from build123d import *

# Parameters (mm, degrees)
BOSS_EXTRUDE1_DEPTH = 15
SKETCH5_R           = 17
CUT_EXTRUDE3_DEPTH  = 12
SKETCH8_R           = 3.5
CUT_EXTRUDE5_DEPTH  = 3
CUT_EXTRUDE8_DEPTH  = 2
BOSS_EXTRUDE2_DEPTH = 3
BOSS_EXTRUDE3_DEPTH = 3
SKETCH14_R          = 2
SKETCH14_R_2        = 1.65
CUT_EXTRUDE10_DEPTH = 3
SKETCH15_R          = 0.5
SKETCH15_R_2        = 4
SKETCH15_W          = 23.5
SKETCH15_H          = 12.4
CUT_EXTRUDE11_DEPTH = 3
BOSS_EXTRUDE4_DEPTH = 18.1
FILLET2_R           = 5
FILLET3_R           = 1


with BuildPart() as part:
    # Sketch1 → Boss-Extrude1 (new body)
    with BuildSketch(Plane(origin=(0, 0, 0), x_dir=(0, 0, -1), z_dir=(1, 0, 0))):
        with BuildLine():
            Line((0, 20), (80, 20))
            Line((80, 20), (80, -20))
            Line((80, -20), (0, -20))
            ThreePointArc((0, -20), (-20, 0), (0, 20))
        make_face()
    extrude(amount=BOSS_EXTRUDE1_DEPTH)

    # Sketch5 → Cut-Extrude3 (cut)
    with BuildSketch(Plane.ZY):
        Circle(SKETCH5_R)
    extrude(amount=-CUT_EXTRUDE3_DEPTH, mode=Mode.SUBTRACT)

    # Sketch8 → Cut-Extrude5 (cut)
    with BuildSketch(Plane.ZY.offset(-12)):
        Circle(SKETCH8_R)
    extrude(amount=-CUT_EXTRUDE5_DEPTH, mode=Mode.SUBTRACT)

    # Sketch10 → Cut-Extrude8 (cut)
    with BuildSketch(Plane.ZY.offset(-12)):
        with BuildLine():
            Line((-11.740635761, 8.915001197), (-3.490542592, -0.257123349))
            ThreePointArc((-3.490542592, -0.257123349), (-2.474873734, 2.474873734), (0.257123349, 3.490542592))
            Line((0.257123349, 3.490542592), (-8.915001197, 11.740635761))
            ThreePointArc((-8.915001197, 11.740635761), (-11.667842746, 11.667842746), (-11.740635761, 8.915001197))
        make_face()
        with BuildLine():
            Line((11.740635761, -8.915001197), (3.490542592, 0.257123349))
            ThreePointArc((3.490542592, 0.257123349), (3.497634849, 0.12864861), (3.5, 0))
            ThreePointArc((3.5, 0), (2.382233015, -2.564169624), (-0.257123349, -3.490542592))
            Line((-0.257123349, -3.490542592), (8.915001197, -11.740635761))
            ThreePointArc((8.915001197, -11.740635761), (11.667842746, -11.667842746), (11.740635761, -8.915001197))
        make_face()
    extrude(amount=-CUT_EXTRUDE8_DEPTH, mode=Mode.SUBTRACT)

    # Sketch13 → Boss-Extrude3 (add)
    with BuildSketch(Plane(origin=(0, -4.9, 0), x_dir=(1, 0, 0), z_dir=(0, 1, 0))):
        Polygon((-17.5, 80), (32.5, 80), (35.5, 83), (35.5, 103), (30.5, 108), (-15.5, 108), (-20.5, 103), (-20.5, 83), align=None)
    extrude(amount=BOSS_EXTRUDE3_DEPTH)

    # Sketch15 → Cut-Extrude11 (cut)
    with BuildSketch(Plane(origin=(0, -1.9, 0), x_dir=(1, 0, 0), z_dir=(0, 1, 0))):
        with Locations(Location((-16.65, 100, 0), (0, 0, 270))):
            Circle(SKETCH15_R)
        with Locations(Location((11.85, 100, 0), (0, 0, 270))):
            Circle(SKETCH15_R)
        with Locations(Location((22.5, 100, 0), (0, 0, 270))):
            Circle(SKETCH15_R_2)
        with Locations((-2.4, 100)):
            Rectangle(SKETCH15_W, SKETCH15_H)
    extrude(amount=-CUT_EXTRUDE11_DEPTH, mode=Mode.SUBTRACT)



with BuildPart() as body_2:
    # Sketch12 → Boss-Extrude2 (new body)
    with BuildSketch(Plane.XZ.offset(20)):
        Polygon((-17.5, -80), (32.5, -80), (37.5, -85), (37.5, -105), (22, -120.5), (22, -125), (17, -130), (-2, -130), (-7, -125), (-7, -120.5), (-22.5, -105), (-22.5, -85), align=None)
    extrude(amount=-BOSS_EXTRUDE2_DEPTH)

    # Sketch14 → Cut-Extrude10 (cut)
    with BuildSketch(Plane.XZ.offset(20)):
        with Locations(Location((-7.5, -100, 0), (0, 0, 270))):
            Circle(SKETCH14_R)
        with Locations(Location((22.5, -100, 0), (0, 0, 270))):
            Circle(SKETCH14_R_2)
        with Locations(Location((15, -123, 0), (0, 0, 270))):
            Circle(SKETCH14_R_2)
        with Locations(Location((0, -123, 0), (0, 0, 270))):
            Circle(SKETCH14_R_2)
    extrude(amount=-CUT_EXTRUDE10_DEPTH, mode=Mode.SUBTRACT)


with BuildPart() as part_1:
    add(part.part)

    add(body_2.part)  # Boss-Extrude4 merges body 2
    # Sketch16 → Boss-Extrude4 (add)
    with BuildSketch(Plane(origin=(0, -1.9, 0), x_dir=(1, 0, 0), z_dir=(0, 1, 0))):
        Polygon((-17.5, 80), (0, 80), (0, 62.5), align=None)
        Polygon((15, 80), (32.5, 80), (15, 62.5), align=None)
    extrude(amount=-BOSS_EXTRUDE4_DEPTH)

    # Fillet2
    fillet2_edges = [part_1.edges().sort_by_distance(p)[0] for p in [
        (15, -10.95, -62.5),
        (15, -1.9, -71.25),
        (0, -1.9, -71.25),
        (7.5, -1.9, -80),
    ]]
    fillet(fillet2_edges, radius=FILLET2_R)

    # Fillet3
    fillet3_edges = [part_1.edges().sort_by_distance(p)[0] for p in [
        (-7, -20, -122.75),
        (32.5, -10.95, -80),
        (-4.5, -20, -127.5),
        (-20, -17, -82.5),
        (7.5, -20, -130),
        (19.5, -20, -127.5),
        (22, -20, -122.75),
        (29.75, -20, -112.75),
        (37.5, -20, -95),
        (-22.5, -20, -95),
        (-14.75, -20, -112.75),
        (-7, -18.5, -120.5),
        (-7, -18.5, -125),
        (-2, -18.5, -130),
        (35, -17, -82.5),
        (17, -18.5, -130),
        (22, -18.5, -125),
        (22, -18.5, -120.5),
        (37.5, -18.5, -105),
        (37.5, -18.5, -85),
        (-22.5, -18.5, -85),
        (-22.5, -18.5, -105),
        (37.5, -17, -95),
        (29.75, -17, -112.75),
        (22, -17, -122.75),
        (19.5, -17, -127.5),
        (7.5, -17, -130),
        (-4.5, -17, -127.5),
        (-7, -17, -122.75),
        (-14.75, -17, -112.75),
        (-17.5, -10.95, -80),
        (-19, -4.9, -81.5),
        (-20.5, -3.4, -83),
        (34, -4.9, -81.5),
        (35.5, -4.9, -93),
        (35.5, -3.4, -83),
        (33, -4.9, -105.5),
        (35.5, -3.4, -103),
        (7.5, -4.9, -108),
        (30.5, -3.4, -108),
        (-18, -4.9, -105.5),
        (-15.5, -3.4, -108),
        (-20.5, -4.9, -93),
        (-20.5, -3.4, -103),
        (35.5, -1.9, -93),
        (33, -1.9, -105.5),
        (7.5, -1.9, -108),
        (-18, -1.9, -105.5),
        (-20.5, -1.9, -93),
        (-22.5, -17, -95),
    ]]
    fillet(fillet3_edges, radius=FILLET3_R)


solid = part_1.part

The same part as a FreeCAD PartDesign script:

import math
import FreeCAD as App
import Part
import Sketcher
Q = App.Units.Quantity


def edges_at(feature, points):
    """Names of the edges that pass closest to the given points."""
    edges = feature.Shape.Edges
    near = lambda p: min(range(len(edges)), key=lambda i: edges[i].distToShape(Part.Vertex(*p))[0])
    return sorted({f"Edge{near(p) + 1}" for p in points})


def add_polygon(sketch, points):
    """Adds a closed chain of lines whose ends are joined by coincident constraints."""
    first, n = sketch.GeometryCount, len(points)
    for a, b in zip(points, points[1:] + points[:1]):
        sketch.addGeometry(Part.LineSegment(App.Vector(*a, 0), App.Vector(*b, 0)), False)
    for i in range(n):
        sketch.addConstraint(Sketcher.Constraint("Coincident", first + i, 2, first + (i + 1) % n, 1))

doc = App.newDocument("Part")
params = doc.addObject("Spreadsheet::Sheet", "Params")
for row, (alias, value) in enumerate([
    ("sketch1_radius", "20 mm"),
    ("sketch1_height", "80 mm"),
    ("pad1_length", "15 mm"),
    ("sketch2_diameter", "34 mm"),
    ("pocket1_length", "12 mm"),
    ("sketch3_diameter", "7 mm"),
    ("pocket2_length", "3 mm"),
    ("sketch4_radius", "3.5 mm"),
    ("pocket3_length", "2 mm"),
    ("sketch5_width", "50 mm"),
    ("sketch5_width2", "46 mm"),
    ("sketch5_height", "20 mm"),
    ("pad2_length", "3 mm"),
    ("sketch6_diameter", "1 mm"),
    ("sketch6_diameter2", "8 mm"),
    ("sketch6_width", "23.5 mm"),
    ("sketch6_height", "12.4 mm"),
    ("pocket4_length", "3 mm"),
    ("sketch7_width", "50 mm"),
    ("sketch7_width2", "19 mm"),
    ("sketch7_height", "20 mm"),
    ("sketch7_height2", "4.5 mm"),
    ("pad3_length", "3 mm"),
    ("sketch8_diameter", "4 mm"),
    ("sketch8_diameter2", "3.3 mm"),
    ("pocket5_length", "3 mm"),
    ("sketch9_width", "17.5 mm"),
    ("pad4_length", "18.1 mm"),
    ("fillet_radius", "5 mm"),
    ("fillet2_radius", "1 mm"),
], start=1):
    params.set(f"A{row}", alias)
    params.set(f"B{row}", "=" + value)
    params.setAlias(f"B{row}", alias)

body = doc.addObject("PartDesign::Body", "Body")

# Sketch on YZ plane
sketch1 = body.newObject("Sketcher::SketchObject", "Sketch")
sketch1.AttachmentSupport = (doc.getObject("YZ_Plane"), [""])
sketch1.MapMode = "FlatFace"
sketch1.addGeometry(Part.LineSegment(App.Vector(20, -80, 0), App.Vector(20, 0, 0)), False)
sketch1.addGeometry(Part.ArcOfCircle(Part.Circle(App.Vector(0, 0, 0), App.Vector(0, 0, 1), 20), math.radians(0), math.radians(180)), False)
sketch1.addGeometry(Part.LineSegment(App.Vector(-20, 0, 0), App.Vector(-20, -80, 0)), False)
sketch1.addGeometry(Part.LineSegment(App.Vector(-20, -80, 0), App.Vector(20, -80, 0)), False)
sketch1.addConstraint(Sketcher.Constraint("Tangent", 0, 2, 1, 1))
sketch1.addConstraint(Sketcher.Constraint("Tangent", 1, 2, 2, 1))
sketch1.addConstraint(Sketcher.Constraint("Coincident", 2, 2, 3, 1))
sketch1.addConstraint(Sketcher.Constraint("Coincident", 3, 2, 0, 1))
sketch1.addConstraint(Sketcher.Constraint("Vertical", 0))
sketch1.addConstraint(Sketcher.Constraint("Vertical", 2))
sketch1.addConstraint(Sketcher.Constraint("Horizontal", 3))
sketch1.addConstraint(Sketcher.Constraint("Coincident", 1, 3, -1, 1))
sketch1.addConstraint(Sketcher.Constraint("Radius", 1, Q("20 mm")))
sketch1.addConstraint(Sketcher.Constraint("DistanceY", 0, 1, 0, 2, Q("80 mm")))
sketch1.setExpression("Constraints[8]", "Params.sketch1_radius")
sketch1.setExpression("Constraints[9]", "Params.sketch1_height")
pad1 = body.newObject("PartDesign::Pad", "Pad")
pad1.Profile = sketch1
pad1.setExpression("Length", "Params.pad1_length")

# Sketch on YZ plane
sketch2 = body.newObject("Sketcher::SketchObject", "Sketch001")
sketch2.AttachmentSupport = (doc.getObject("YZ_Plane"), [""])
sketch2.MapMode = "FlatFace"
sketch2.addGeometry(Part.Circle(App.Vector(0, 0, 0), App.Vector(0, 0, 1), 17), False)
sketch2.addConstraint(Sketcher.Constraint("Coincident", 0, 3, -1, 1))
sketch2.addConstraint(Sketcher.Constraint("Diameter", 0, Q("34 mm")))
sketch2.setExpression("Constraints[1]", "Params.sketch2_diameter")
pocket1 = body.newObject("PartDesign::Pocket", "Pocket")
pocket1.Profile = sketch2
pocket1.setExpression("Length", "Params.pocket1_length")
pocket1.Reversed = True

# Sketch on YZ plane
sketch3 = body.newObject("Sketcher::SketchObject", "Sketch002")
sketch3.AttachmentSupport = (doc.getObject("YZ_Plane"), [""])
sketch3.MapMode = "FlatFace"
sketch3.AttachmentOffset = App.Placement(App.Vector(0, 0, 12), App.Rotation())
sketch3.addGeometry(Part.Circle(App.Vector(0, 0, 0), App.Vector(0, 0, 1), 3.5), False)
sketch3.addConstraint(Sketcher.Constraint("Coincident", 0, 3, -1, 1))
sketch3.addConstraint(Sketcher.Constraint("Diameter", 0, Q("7 mm")))
sketch3.setExpression("Constraints[1]", "Params.sketch3_diameter")
pocket2 = body.newObject("PartDesign::Pocket", "Pocket001")
pocket2.Profile = sketch3
pocket2.setExpression("Length", "Params.pocket2_length")
pocket2.Reversed = True

# Sketch on YZ plane
sketch4 = body.newObject("Sketcher::SketchObject", "Sketch003")
sketch4.AttachmentSupport = (doc.getObject("YZ_Plane"), [""])
sketch4.MapMode = "FlatFace"
sketch4.AttachmentOffset = App.Placement(App.Vector(0, 0, 12), App.Rotation())
sketch4.addGeometry(Part.LineSegment(App.Vector(8.92, -11.74, 0), App.Vector(-0.26, -3.49, 0)), False)
sketch4.addGeometry(Part.ArcOfCircle(Part.Circle(App.Vector(0, 0, 0), App.Vector(0, 0, 1), 3.5), math.radians(-94), math.radians(4)), False)
sketch4.addGeometry(Part.LineSegment(App.Vector(3.49, 0.26, 0), App.Vector(11.74, -8.92, 0)), False)
sketch4.addGeometry(Part.ArcOfCircle(Part.Circle(App.Vector(10.25, -10.25, 0), App.Vector(0, 0, 1), 2), math.radians(-132), math.radians(42)), False)
sketch4.addGeometry(Part.LineSegment(App.Vector(-8.92, 11.74, 0), App.Vector(0.26, 3.49, 0)), False)
sketch4.addGeometry(Part.ArcOfCircle(Part.Circle(App.Vector(0, 0, 0), App.Vector(0, 0, 1), 3.5), math.radians(85.79), math.radians(90)), False)
sketch4.addGeometry(Part.ArcOfCircle(Part.Circle(App.Vector(0, 0, 0), App.Vector(0, 0, 1), 3.5), math.radians(90), math.radians(184)), False)
sketch4.addGeometry(Part.LineSegment(App.Vector(-3.49, -0.26, 0), App.Vector(-11.74, 8.92, 0)), False)
sketch4.addGeometry(Part.ArcOfCircle(Part.Circle(App.Vector(-10.25, 10.25, 0), App.Vector(0, 0, 1), 2), math.radians(48), math.radians(222)), False)
sketch4.addConstraint(Sketcher.Constraint("Coincident", 0, 2, 1, 1))
sketch4.addConstraint(Sketcher.Constraint("Coincident", 1, 2, 2, 1))
sketch4.addConstraint(Sketcher.Constraint("Tangent", 2, 2, 3, 2))
sketch4.addConstraint(Sketcher.Constraint("Tangent", 3, 1, 0, 1))
sketch4.addConstraint(Sketcher.Constraint("Coincident", 4, 2, 5, 1))
sketch4.addConstraint(Sketcher.Constraint("Tangent", 5, 2, 6, 1))
sketch4.addConstraint(Sketcher.Constraint("Coincident", 6, 2, 7, 1))
sketch4.addConstraint(Sketcher.Constraint("Tangent", 7, 2, 8, 2))
sketch4.addConstraint(Sketcher.Constraint("Tangent", 8, 1, 4, 1))
sketch4.addConstraint(Sketcher.Constraint("Coincident", 1, 3, -1, 1))
sketch4.addConstraint(Sketcher.Constraint("Coincident", 5, 3, -1, 1))
sketch4.addConstraint(Sketcher.Constraint("Equal", 1, 5))
sketch4.addConstraint(Sketcher.Constraint("Equal", 5, 6))
sketch4.addConstraint(Sketcher.Constraint("Equal", 3, 8))
sketch4.addConstraint(Sketcher.Constraint("Symmetric", 3, 3, 8, 3, -1, 1))
sketch4.addConstraint(Sketcher.Constraint("PointOnObject", 5, 2, -2))
sketch4.addConstraint(Sketcher.Constraint("Parallel", 0, 4))
sketch4.addConstraint(Sketcher.Constraint("Parallel", 2, 7))
sketch4.addConstraint(Sketcher.Constraint("Equal", 0, 2))
sketch4.addConstraint(Sketcher.Constraint("Radius", 1, Q("3.5 mm")))
sketch4.addConstraint(Sketcher.Constraint("Radius", 3, Q("2.000821 mm")))
sketch4.addConstraint(Sketcher.Constraint("DistanceY", 2, 2, -1, 1, Q("8.915001 mm")))
sketch4.addConstraint(Sketcher.Constraint("DistanceX", -1, 1, 3, 1, Q("8.915001 mm")))
sketch4.addConstraint(Sketcher.Constraint("Distance", 0, Q("12.336608 mm")))
sketch4.setExpression("Constraints[19]", "Params.sketch4_radius")
pocket3 = body.newObject("PartDesign::Pocket", "Pocket002")
pocket3.Profile = sketch4
pocket3.setExpression("Length", "Params.pocket3_length")
pocket3.Reversed = True

# Sketch on XZ plane
sketch5 = body.newObject("Sketcher::SketchObject", "Sketch004")
sketch5.AttachmentSupport = (doc.getObject("XZ_Plane"), [""])
sketch5.MapMode = "FlatFace"
sketch5.AttachmentOffset = App.Placement(App.Vector(0, 0, 4.9), App.Rotation())
add_polygon(sketch5, [(-17.5, -80), (32.5, -80), (35.5, -83), (35.5, -103), (30.5, -108), (-15.5, -108), (-20.5, -103), (-20.5, -83)])  # lines 0-7
sketch5.addConstraint(Sketcher.Constraint("Horizontal", 0))
sketch5.addConstraint(Sketcher.Constraint("Vertical", 2))
sketch5.addConstraint(Sketcher.Constraint("Horizontal", 4))
sketch5.addConstraint(Sketcher.Constraint("Vertical", 6))
sketch5.addConstraint(Sketcher.Constraint("Perpendicular", 1, 3))
sketch5.addConstraint(Sketcher.Constraint("Perpendicular", 3, 5))
sketch5.addConstraint(Sketcher.Constraint("Perpendicular", 5, 7))
sketch5.addConstraint(Sketcher.Constraint("Horizontal", 2, 2, 5, 2))
sketch5.addConstraint(Sketcher.Constraint("Horizontal", 1, 2, 6, 2))
sketch5.addConstraint(Sketcher.Constraint("Equal", 3, 5))
sketch5.addConstraint(Sketcher.Constraint("DistanceX", 0, 1, 0, 2, Q("50 mm")))
sketch5.addConstraint(Sketcher.Constraint("DistanceX", 4, 2, 4, 1, Q("46 mm")))
sketch5.addConstraint(Sketcher.Constraint("DistanceY", 2, 2, 2, 1, Q("20 mm")))
sketch5.addConstraint(Sketcher.Constraint("DistanceY", 0, 2, -1, 1, Q("80 mm")))
sketch5.addConstraint(Sketcher.Constraint("DistanceY", 1, 2, -1, 1, Q("83 mm")))
sketch5.addConstraint(Sketcher.Constraint("DistanceX", -1, 1, 0, 2, Q("32.5 mm")))
sketch5.setExpression("Constraints[18]", "Params.sketch5_width")
sketch5.setExpression("Constraints[19]", "Params.sketch5_width2")
sketch5.setExpression("Constraints[20]", "Params.sketch5_height")
pad2 = body.newObject("PartDesign::Pad", "Pad001")
pad2.Profile = sketch5
pad2.setExpression("Length", "Params.pad2_length")
pad2.Reversed = True

# Sketch on XZ plane
sketch6 = body.newObject("Sketcher::SketchObject", "Sketch005")
sketch6.AttachmentSupport = (doc.getObject("XZ_Plane"), [""])
sketch6.MapMode = "FlatFace"
sketch6.AttachmentOffset = App.Placement(App.Vector(0, 0, 1.9), App.Rotation())
sketch6.addGeometry(Part.Circle(App.Vector(-16.6, -100, 0), App.Vector(0, 0, 1), 0.5), False)  # 0
sketch6.addGeometry(Part.Circle(App.Vector(11.8, -100, 0), App.Vector(0, 0, 1), 0.5), False)  # 1
sketch6.addGeometry(Part.Circle(App.Vector(22.5, -100, 0), App.Vector(0, 0, 1), 4), False)  # 2
add_polygon(sketch6, [(-14.2, -106.2), (-14.2, -93.8), (9.3, -93.8), (9.3, -106.2)])  # lines 3-6
sketch6.addConstraint(Sketcher.Constraint("Vertical", 3))
sketch6.addConstraint(Sketcher.Constraint("Horizontal", 4))
sketch6.addConstraint(Sketcher.Constraint("Vertical", 5))
sketch6.addConstraint(Sketcher.Constraint("Horizontal", 6))
sketch6.addConstraint(Sketcher.Constraint("Equal", 0, 1))
sketch6.addConstraint(Sketcher.Constraint("Horizontal", 0, 3, 1, 3))
sketch6.addConstraint(Sketcher.Constraint("Horizontal", 1, 3, 2, 3))
sketch6.addConstraint(Sketcher.Constraint("Diameter", 0, Q("1 mm")))
sketch6.addConstraint(Sketcher.Constraint("Diameter", 2, Q("8 mm")))
sketch6.addConstraint(Sketcher.Constraint("DistanceX", 4, 1, 4, 2, Q("23.5 mm")))
sketch6.addConstraint(Sketcher.Constraint("DistanceY", 3, 1, 3, 2, Q("12.4 mm")))
sketch6.addConstraint(Sketcher.Constraint("DistanceY", 0, 3, -1, 1, Q("100 mm")))
sketch6.addConstraint(Sketcher.Constraint("DistanceX", 3, 2, 1, 3, Q("26 mm")))
sketch6.addConstraint(Sketcher.Constraint("DistanceX", 0, 3, 4, 2, Q("26 mm")))
sketch6.addConstraint(Sketcher.Constraint("DistanceX", -1, 1, 2, 3, Q("22.5 mm")))
sketch6.addConstraint(Sketcher.Constraint("DistanceY", 3, 2, -1, 1, Q("93.8 mm")))
sketch6.addConstraint(Sketcher.Constraint("DistanceX", 0, 3, -1, 1, Q("16.65 mm")))
sketch6.setExpression("Constraints[11]", "Params.sketch6_diameter")
sketch6.setExpression("Constraints[12]", "Params.sketch6_diameter2")
sketch6.setExpression("Constraints[13]", "Params.sketch6_width")
sketch6.setExpression("Constraints[14]", "Params.sketch6_height")
pocket4 = body.newObject("PartDesign::Pocket", "Pocket003")
pocket4.Profile = sketch6
pocket4.setExpression("Length", "Params.pocket4_length")
pocket4.Reversed = True
body2 = doc.addObject("PartDesign::Body", "Body001")

# Sketch on XZ plane
sketch7 = body2.newObject("Sketcher::SketchObject", "Sketch006")
sketch7.AttachmentSupport = (doc.getObject("XZ_Plane001"), [""])
sketch7.MapMode = "FlatFace"
sketch7.AttachmentOffset = App.Placement(App.Vector(0, 0, 20), App.Rotation())
add_polygon(sketch7, [(32.5, -80), (-17.5, -80), (-22.5, -85), (-22.5, -105), (-7, -120.5), (-7, -125), (-2, -130), (17, -130), (22, -125), (22, -120.5), (37.5, -105), (37.5, -85)])  # lines 0-11
sketch7.addConstraint(Sketcher.Constraint("Horizontal", 0))
sketch7.addConstraint(Sketcher.Constraint("Vertical", 2))
sketch7.addConstraint(Sketcher.Constraint("Vertical", 4))
sketch7.addConstraint(Sketcher.Constraint("Horizontal", 6))
sketch7.addConstraint(Sketcher.Constraint("Vertical", 8))
sketch7.addConstraint(Sketcher.Constraint("Vertical", 10))
sketch7.addConstraint(Sketcher.Constraint("Perpendicular", 1, 3))
sketch7.addConstraint(Sketcher.Constraint("Parallel", 3, 5))
sketch7.addConstraint(Sketcher.Constraint("Perpendicular", 5, 7))
sketch7.addConstraint(Sketcher.Constraint("Parallel", 7, 9))
sketch7.addConstraint(Sketcher.Constraint("Perpendicular", 9, 11))
sketch7.addConstraint(Sketcher.Constraint("Horizontal", 4, 2, 7, 2))
sketch7.addConstraint(Sketcher.Constraint("Horizontal", 3, 2, 8, 2))
sketch7.addConstraint(Sketcher.Constraint("Horizontal", 2, 2, 9, 2))
sketch7.addConstraint(Sketcher.Constraint("Horizontal", 1, 2, 10, 2))
sketch7.addConstraint(Sketcher.Constraint("Equal", 1, 5))
sketch7.addConstraint(Sketcher.Constraint("Equal", 5, 7))
sketch7.addConstraint(Sketcher.Constraint("DistanceX", 0, 2, 0, 1, Q("50 mm")))
sketch7.addConstraint(Sketcher.Constraint("DistanceX", 6, 1, 6, 2, Q("19 mm")))
sketch7.addConstraint(Sketcher.Constraint("DistanceY", 2, 2, 2, 1, Q("20 mm")))
sketch7.addConstraint(Sketcher.Constraint("DistanceY", 4, 2, 4, 1, Q("4.5 mm")))
sketch7.addConstraint(Sketcher.Constraint("DistanceY", 0, 2, -1, 1, Q("80 mm")))
sketch7.addConstraint(Sketcher.Constraint("DistanceY", 1, 2, -1, 1, Q("85 mm")))
sketch7.addConstraint(Sketcher.Constraint("DistanceX", 3, 2, -1, 1, Q("7 mm")))
sketch7.setExpression("Constraints[29]", "Params.sketch7_width")
sketch7.setExpression("Constraints[30]", "Params.sketch7_width2")
sketch7.setExpression("Constraints[31]", "Params.sketch7_height")
sketch7.setExpression("Constraints[32]", "Params.sketch7_height2")
pad3 = body2.newObject("PartDesign::Pad", "Pad002")
pad3.Profile = sketch7
pad3.setExpression("Length", "Params.pad3_length")
pad3.Reversed = True

# Sketch on XZ plane
sketch8 = body2.newObject("Sketcher::SketchObject", "Sketch007")
sketch8.AttachmentSupport = (doc.getObject("XZ_Plane001"), [""])
sketch8.MapMode = "FlatFace"
sketch8.AttachmentOffset = App.Placement(App.Vector(0, 0, 20), App.Rotation())
sketch8.addGeometry(Part.Circle(App.Vector(-7.5, -100, 0), App.Vector(0, 0, 1), 2), False)
sketch8.addGeometry(Part.Circle(App.Vector(22.5, -100, 0), App.Vector(0, 0, 1), 1.6), False)
sketch8.addGeometry(Part.Circle(App.Vector(15, -123, 0), App.Vector(0, 0, 1), 1.6), False)
sketch8.addGeometry(Part.Circle(App.Vector(0, -123, 0), App.Vector(0, 0, 1), 1.6), False)
sketch8.addConstraint(Sketcher.Constraint("Equal", 1, 2))
sketch8.addConstraint(Sketcher.Constraint("Equal", 2, 3))
sketch8.addConstraint(Sketcher.Constraint("PointOnObject", 3, 3, -2))
sketch8.addConstraint(Sketcher.Constraint("Horizontal", 0, 3, 1, 3))
sketch8.addConstraint(Sketcher.Constraint("Horizontal", 2, 3, 3, 3))
sketch8.addConstraint(Sketcher.Constraint("Diameter", 0, Q("4 mm")))
sketch8.addConstraint(Sketcher.Constraint("Diameter", 1, Q("3.3 mm")))
sketch8.addConstraint(Sketcher.Constraint("DistanceY", 0, 3, -1, 1, Q("100 mm")))
sketch8.addConstraint(Sketcher.Constraint("DistanceX", -1, 1, 2, 3, Q("15 mm")))
sketch8.addConstraint(Sketcher.Constraint("DistanceY", 2, 3, -1, 1, Q("123 mm")))
sketch8.addConstraint(Sketcher.Constraint("DistanceX", 0, 3, 1, 3, Q("30 mm")))
sketch8.addConstraint(Sketcher.Constraint("DistanceX", 0, 3, -1, 1, Q("7.5 mm")))
sketch8.setExpression("Constraints[5]", "Params.sketch8_diameter")
sketch8.setExpression("Constraints[6]", "Params.sketch8_diameter2")
pocket5 = body2.newObject("PartDesign::Pocket", "Pocket004")
pocket5.Profile = sketch8
pocket5.setExpression("Length", "Params.pocket5_length")
doc.recompute()

boolean = body.newObject("PartDesign::Boolean", "Boolean")
boolean.Type = "Fuse"
boolean.addObjects([body2])

# Sketch on XZ plane
sketch9 = body.newObject("Sketcher::SketchObject", "Sketch008")
sketch9.AttachmentSupport = (doc.getObject("XZ_Plane"), [""])
sketch9.MapMode = "FlatFace"
sketch9.AttachmentOffset = App.Placement(App.Vector(0, 0, 1.9), App.Rotation())
add_polygon(sketch9, [(0, -80), (-18, -80), (0, -62)])  # lines 0-2
add_polygon(sketch9, [(32, -80), (15, -80), (15, -62)])  # lines 3-5
sketch9.addConstraint(Sketcher.Constraint("Horizontal", 0))
sketch9.addConstraint(Sketcher.Constraint("Vertical", 2))
sketch9.addConstraint(Sketcher.Constraint("Horizontal", 3))
sketch9.addConstraint(Sketcher.Constraint("Vertical", 4))
sketch9.addConstraint(Sketcher.Constraint("PointOnObject", 1, 2, -2))
sketch9.addConstraint(Sketcher.Constraint("Perpendicular", 1, 5))
sketch9.addConstraint(Sketcher.Constraint("Horizontal", 2, 2, 3, 2))
sketch9.addConstraint(Sketcher.Constraint("Horizontal", 1, 2, 4, 2))
sketch9.addConstraint(Sketcher.Constraint("Equal", 0, 3))
sketch9.addConstraint(Sketcher.Constraint("DistanceX", 0, 2, 0, 1, Q("17.5 mm")))
sketch9.addConstraint(Sketcher.Constraint("DistanceY", 0, 2, -1, 1, Q("80 mm")))
sketch9.addConstraint(Sketcher.Constraint("DistanceX", -1, 1, 3, 2, Q("15 mm")))
sketch9.setExpression("Constraints[15]", "Params.sketch9_width")
pad4 = body.newObject("PartDesign::Pad", "Pad003")
pad4.Profile = sketch9
pad4.setExpression("Length", "Params.pad4_length")
doc.recompute()

fillet = body.newObject("PartDesign::Fillet", "Fillet")
fillet.Base = (pad4, edges_at(pad4, [
    (15, -10.95, -62.5),
    (15, -1.9, -71.25),
    (0, -1.9, -71.25),
    (7.5, -1.9, -80),
]))
fillet.setExpression("Radius", "Params.fillet_radius")
doc.recompute()

fillet2 = body.newObject("PartDesign::Fillet", "Fillet001")
fillet2.Base = (fillet, edges_at(fillet, [
    (-7, -20, -122.75),
    (32.5, -10.95, -80),
    (-4.5, -20, -127.5),
    (-20, -17, -82.5),
    (7.5, -20, -130),
    (19.5, -20, -127.5),
    (22, -20, -122.75),
    (29.75, -20, -112.75),
    (37.5, -20, -95),
    (-22.5, -20, -95),
    (-14.75, -20, -112.75),
    (-7, -18.5, -120.5),
    (-7, -18.5, -125),
    (-2, -18.5, -130),
    (35, -17, -82.5),
    (17, -18.5, -130),
    (22, -18.5, -125),
    (22, -18.5, -120.5),
    (37.5, -18.5, -105),
    (37.5, -18.5, -85),
    (-22.5, -18.5, -85),
    (-22.5, -18.5, -105),
    (37.5, -17, -95),
    (29.75, -17, -112.75),
    (22, -17, -122.75),
    (19.5, -17, -127.5),
    (7.5, -17, -130),
    (-4.5, -17, -127.5),
    (-7, -17, -122.75),
    (-14.75, -17, -112.75),
    (-17.5, -10.95, -80),
    (-19, -4.9, -81.5),
    (-20.5, -3.4, -83),
    (34, -4.9, -81.5),
    (35.5, -4.9, -93),
    (35.5, -3.4, -83),
    (33, -4.9, -105.5),
    (35.5, -3.4, -103),
    (7.5, -4.9, -108),
    (30.5, -3.4, -108),
    (-18, -4.9, -105.5),
    (-15.5, -3.4, -108),
    (-20.5, -4.9, -93),
    (-20.5, -3.4, -103),
    (35.5, -1.9, -93),
    (33, -1.9, -105.5),
    (7.5, -1.9, -108),
    (-18, -1.9, -105.5),
    (-20.5, -1.9, -93),
    (-22.5, -17, -95),
]))
fillet2.setExpression("Radius", "Params.fillet2_radius")

doc.recompute()
